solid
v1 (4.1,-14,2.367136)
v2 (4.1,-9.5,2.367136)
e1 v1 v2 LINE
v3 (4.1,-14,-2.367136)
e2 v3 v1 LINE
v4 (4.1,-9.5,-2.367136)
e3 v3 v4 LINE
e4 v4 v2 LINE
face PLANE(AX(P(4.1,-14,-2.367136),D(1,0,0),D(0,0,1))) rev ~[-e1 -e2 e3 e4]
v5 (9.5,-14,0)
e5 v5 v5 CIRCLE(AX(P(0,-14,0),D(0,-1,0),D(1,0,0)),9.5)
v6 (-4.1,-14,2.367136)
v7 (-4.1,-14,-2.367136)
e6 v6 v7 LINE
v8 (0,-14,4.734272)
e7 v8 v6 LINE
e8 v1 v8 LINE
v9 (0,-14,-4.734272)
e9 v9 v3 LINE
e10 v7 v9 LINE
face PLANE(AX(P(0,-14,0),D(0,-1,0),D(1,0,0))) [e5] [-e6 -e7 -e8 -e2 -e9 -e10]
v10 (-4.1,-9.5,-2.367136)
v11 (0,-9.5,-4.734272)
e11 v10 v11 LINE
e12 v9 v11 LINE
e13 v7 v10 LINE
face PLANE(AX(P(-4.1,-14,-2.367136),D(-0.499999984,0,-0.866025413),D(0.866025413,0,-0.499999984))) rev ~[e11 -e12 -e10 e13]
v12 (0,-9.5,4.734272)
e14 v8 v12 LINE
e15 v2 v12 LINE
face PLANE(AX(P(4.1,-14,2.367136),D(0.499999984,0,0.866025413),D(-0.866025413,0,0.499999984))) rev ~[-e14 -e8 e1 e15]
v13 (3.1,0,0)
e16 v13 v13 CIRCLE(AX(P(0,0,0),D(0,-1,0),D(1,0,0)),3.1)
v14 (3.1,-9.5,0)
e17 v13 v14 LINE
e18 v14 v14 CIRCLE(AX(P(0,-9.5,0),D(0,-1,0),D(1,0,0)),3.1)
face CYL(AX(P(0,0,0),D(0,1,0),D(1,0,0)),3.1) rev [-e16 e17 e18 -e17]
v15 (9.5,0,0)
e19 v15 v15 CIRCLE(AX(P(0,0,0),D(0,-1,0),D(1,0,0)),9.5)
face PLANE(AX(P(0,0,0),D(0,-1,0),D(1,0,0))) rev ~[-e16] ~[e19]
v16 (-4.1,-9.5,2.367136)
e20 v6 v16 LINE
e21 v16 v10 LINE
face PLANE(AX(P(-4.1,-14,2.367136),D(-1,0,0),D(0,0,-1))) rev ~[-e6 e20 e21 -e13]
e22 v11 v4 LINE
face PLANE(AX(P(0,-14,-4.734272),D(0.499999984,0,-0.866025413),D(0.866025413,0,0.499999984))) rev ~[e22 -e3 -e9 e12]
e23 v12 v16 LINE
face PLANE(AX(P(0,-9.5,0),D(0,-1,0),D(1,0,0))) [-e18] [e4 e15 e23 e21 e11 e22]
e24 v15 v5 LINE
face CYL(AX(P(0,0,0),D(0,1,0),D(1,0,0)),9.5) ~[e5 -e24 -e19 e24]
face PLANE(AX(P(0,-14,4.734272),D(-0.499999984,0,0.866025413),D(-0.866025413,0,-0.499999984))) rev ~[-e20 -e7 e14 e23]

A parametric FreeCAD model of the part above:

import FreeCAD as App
import Part
import Sketcher
from FreeCAD import Vector
Q = App.Units.Quantity

doc = App.newDocument("Part")
body = doc.addObject("PartDesign::Body", "Body")

# Sketch on XZ plane
sketch1 = body.newObject("Sketcher::SketchObject", "Sketch")
sketch1.AttachmentSupport = (doc.getObject("XZ_Plane"), [""])
sketch1.MapMode = "FlatFace"
sketch1.addGeometry(Part.Circle(Vector(0, 0, 0), Vector(0, 0, 1), 9.5), False)
sketch1.addGeometry(Part.Circle(Vector(0, 0, 0), Vector(0, 0, 1), 3.1), False)
sketch1.addConstraint(Sketcher.Constraint("Coincident", 0, 3, -1, 1))
sketch1.addConstraint(Sketcher.Constraint("Coincident", 1, 3, -1, 1))
sketch1.addConstraint(Sketcher.Constraint("Diameter", 0, 19.0))
sketch1.addConstraint(Sketcher.Constraint("Diameter", 1, 6.2))
pad1 = body.newObject("PartDesign::Pad", "Pad")
pad1.Profile = sketch1
pad1.Length = 14

# Sketch on XZ plane
sketch2 = body.newObject("Sketcher::SketchObject", "Sketch001")
sketch2.AttachmentSupport = (doc.getObject("XZ_Plane"), [""])
sketch2.MapMode = "FlatFace"
sketch2.AttachmentOffset = App.Placement(Vector(0, 0, 14), App.Rotation())
sketch2.addGeometry(Part.LineSegment(Vector(4.1, -2.367136, 0), Vector(4.1, 2.367136, 0)), False)
sketch2.addGeometry(Part.LineSegment(Vector(4.1, 2.367136, 0), Vector(0, 4.734272, 0)), False)
sketch2.addGeometry(Part.LineSegment(Vector(0, 4.734272, 0), Vector(-4.1, 2.367136, 0)), False)
sketch2.addGeometry(Part.LineSegment(Vector(-4.1, 2.367136, 0), Vector(-4.1, -2.367136, 0)), False)
sketch2.addGeometry(Part.LineSegment(Vector(-4.1, -2.367136, 0), Vector(0, -4.734272, 0)), False)
sketch2.addGeometry(Part.LineSegment(Vector(0, -4.734272, 0), Vector(4.1, -2.367136, 0)), False)
sketch2.addGeometry(Part.Circle(Vector(0, 0, 0), Vector(0, 0, 1), 3.1), False)
sketch2.addConstraint(Sketcher.Constraint("Coincident", 0, 2, 1, 1))
sketch2.addConstraint(Sketcher.Constraint("Coincident", 1, 2, 2, 1))
sketch2.addConstraint(Sketcher.Constraint("Coincident", 2, 2, 3, 1))
sketch2.addConstraint(Sketcher.Constraint("Coincident", 3, 2, 4, 1))
sketch2.addConstraint(Sketcher.Constraint("Coincident", 4, 2, 5, 1))
sketch2.addConstraint(Sketcher.Constraint("Coincident", 5, 2, 0, 1))
sketch2.addConstraint(Sketcher.Constraint("Vertical", 0))
sketch2.addConstraint(Sketcher.Constraint("Vertical", 3))
sketch2.addConstraint(Sketcher.Constraint("Coincident", 6, 3, -1, 1))
sketch2.addConstraint(Sketcher.Constraint("Symmetric", 0, 2, 3, 2, -1, 1))
sketch2.addConstraint(Sketcher.Constraint("Symmetric", 1, 2, 4, 2, -1, 1))
sketch2.addConstraint(Sketcher.Constraint("PointOnObject", 1, 2, -2))
sketch2.addConstraint(Sketcher.Constraint("Parallel", 2, 5))
sketch2.addConstraint(Sketcher.Constraint("Horizontal", 0, 2, 2, 2))
sketch2.addConstraint(Sketcher.Constraint("Diameter", 6, 6.2))
sketch2.addConstraint(Sketcher.Constraint("Angle", 1, Q("150.000001 deg")))
sketch2.addConstraint(Sketcher.Constraint("DistanceX", -1, 1, 0, 2, 4.1))
sketch2.addConstraint(Sketcher.Constraint("DistanceY", 0, 1, 0, 2, 4.734272))
pocket1 = body.newObject("PartDesign::Pocket", "Pocket")
pocket1.Profile = sketch2
pocket1.Length = 4.5

doc.recompute()
